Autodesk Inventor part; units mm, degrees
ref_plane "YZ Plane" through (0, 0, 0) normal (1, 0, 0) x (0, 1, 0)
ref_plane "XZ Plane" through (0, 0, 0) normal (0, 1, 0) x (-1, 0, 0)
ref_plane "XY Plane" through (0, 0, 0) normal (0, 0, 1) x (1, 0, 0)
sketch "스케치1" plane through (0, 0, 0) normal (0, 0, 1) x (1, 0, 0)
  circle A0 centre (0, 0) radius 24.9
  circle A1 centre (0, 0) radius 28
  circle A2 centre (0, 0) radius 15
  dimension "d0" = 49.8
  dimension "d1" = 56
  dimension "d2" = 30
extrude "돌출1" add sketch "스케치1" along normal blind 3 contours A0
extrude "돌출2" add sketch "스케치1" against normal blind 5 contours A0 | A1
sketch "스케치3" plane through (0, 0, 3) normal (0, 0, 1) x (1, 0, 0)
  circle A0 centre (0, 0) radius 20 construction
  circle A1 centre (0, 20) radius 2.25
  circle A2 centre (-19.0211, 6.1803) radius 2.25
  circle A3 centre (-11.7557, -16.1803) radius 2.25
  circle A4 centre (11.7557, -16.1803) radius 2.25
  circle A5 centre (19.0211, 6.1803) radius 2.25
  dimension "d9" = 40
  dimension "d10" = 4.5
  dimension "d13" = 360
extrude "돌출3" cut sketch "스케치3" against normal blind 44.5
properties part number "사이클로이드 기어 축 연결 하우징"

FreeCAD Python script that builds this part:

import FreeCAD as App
import Part
import Sketcher
from FreeCAD import Vector
Q = App.Units.Quantity

doc = App.newDocument("Part")
body = doc.addObject("PartDesign::Body", "Body")

# Sketch on XY plane
sketch1 = body.newObject("Sketcher::SketchObject", "Sketch")
sketch1.AttachmentSupport = (doc.getObject("XY_Plane"), [""])
sketch1.MapMode = "FlatFace"
sketch1.addGeometry([
    Part.Circle(Vector(0, 0, 0), Vector(0, 0, 1), 25),
    Part.Circle(Vector(0, 0, 0), Vector(0, 0, 1), 15),
], False)
sketch1.addConstraint([
    Sketcher.Constraint("Coincident", 0, 3, -1, 1),
    Sketcher.Constraint("Coincident", 1, 3, -1, 1),
    Sketcher.Constraint("Diameter", 1, Q("30 mm")),
    Sketcher.Constraint("Diameter", 0, Q("49.8 mm")),
])
pad1 = body.newObject("PartDesign::Pad", "Pad")
pad1.Profile = sketch1
pad1.Length = 3

# Sketch on XY plane
sketch2 = body.newObject("Sketcher::SketchObject", "Sketch001")
sketch2.AttachmentSupport = (doc.getObject("XY_Plane"), [""])
sketch2.MapMode = "FlatFace"
sketch2.addGeometry([
    Part.Circle(Vector(0, 0, 0), Vector(0, 0, 1), 28),
    Part.Circle(Vector(0, 0, 0), Vector(0, 0, 1), 15),
], False)
sketch2.addConstraint([
    Sketcher.Constraint("Coincident", 0, 3, -1, 1),
    Sketcher.Constraint("Coincident", 1, 3, -1, 1),
    Sketcher.Constraint("Diameter", 0, Q("56 mm")),
    Sketcher.Constraint("Diameter", 1, Q("30 mm")),
])
pad2 = body.newObject("PartDesign::Pad", "Pad001")
pad2.Profile = sketch2
pad2.Length = 5
pad2.Reversed = True

# Sketch on XY plane
sketch3 = body.newObject("Sketcher::SketchObject", "Sketch002")
sketch3.AttachmentSupport = (doc.getObject("XY_Plane"), [""])
sketch3.MapMode = "FlatFace"
sketch3.AttachmentOffset = App.Placement(Vector(0, 0, 3), App.Rotation())
sketch3.addGeometry([
    Part.Circle(Vector(0, 20, 0), Vector(0, 0, 1), 2.2),  # 0
    Part.Circle(Vector(-19, 6.2, 0), Vector(0, 0, 1), 2.2),  # 1
    Part.Circle(Vector(-11.8, -16.2, 0), Vector(0, 0, 1), 2.2),  # 2
    Part.Circle(Vector(11.8, -16.2, 0), Vector(0, 0, 1), 2.2),  # 3
    Part.Circle(Vector(19, 6.2, 0), Vector(0, 0, 1), 2.2),  # 4
], False)
sketch3.addConstraint([
    Sketcher.Constraint("Equal", 0, 1),
    Sketcher.Constraint("Equal", 1, 2),
    Sketcher.Constraint("Equal", 2, 3),
    Sketcher.Constraint("Equal", 3, 4),
    Sketcher.Constraint("Symmetric", 2, 3, 3, 3, -2),
    Sketcher.Constraint("Symmetric", 1, 3, 4, 3, -2),
    Sketcher.Constraint("PointOnObject", 0, 3, -2),
    Sketcher.Constraint("Diameter", 0, Q("4.5 mm")),
    Sketcher.Constraint("DistanceY", -1, 1, 0, 3, Q("20 mm")),
    Sketcher.Constraint("DistanceX", 1, 3, -1, 1, Q("19.021 mm")),
    Sketcher.Constraint("DistanceY", -1, 1, 1, 3, Q("6.1803 mm")),
    Sketcher.Constraint("DistanceX", 2, 3, -1, 1, Q("11.7557 mm")),
    Sketcher.Constraint("DistanceY", 2, 3, -1, 1, Q("16.1803 mm")),
])
pocket1 = body.newObject("PartDesign::Pocket", "Pocket")
pocket1.Profile = sketch3
pocket1.Length = 44.5

doc.recompute()
